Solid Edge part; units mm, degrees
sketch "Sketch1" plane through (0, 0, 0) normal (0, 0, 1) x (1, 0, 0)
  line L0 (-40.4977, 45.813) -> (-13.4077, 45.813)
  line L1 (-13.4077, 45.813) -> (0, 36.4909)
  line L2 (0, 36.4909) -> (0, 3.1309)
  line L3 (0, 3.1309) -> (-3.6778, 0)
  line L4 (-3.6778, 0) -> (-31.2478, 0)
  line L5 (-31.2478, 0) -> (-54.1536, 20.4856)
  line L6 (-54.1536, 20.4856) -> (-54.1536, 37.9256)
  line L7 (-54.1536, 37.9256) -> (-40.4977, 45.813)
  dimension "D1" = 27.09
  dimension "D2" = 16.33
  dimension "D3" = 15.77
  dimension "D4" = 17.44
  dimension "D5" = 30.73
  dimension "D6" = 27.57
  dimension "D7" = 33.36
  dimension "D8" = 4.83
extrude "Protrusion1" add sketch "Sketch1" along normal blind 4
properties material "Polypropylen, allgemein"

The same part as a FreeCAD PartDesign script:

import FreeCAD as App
import Part
import Sketcher
Q = App.Units.Quantity

doc = App.newDocument("Part")
body = doc.addObject("PartDesign::Body", "Body")

# Sketch on XY plane
sketch1 = body.newObject("Sketcher::SketchObject", "Sketch")
sketch1.AttachmentSupport = (doc.getObject("XY_Plane"), [""])
sketch1.MapMode = "FlatFace"
sketch1.addGeometry([
    Part.LineSegment(App.Vector(-13.4077, 45.813, 0), App.Vector(-40.4977, 45.813, 0)),  # 0
    Part.LineSegment(App.Vector(-40.4977, 45.813, 0), App.Vector(-54.1536, 37.9256, 0)),  # 1
    Part.LineSegment(App.Vector(-54.1536, 37.9256, 0), App.Vector(-54.1536, 20.4856, 0)),  # 2
    Part.LineSegment(App.Vector(-54.1536, 20.4856, 0), App.Vector(-31.2478, 0, 0)),  # 3
    Part.LineSegment(App.Vector(-31.2478, 0, 0), App.Vector(-3.6778, 0, 0)),  # 4
    Part.LineSegment(App.Vector(-3.6778, 0, 0), App.Vector(0, 3.1309, 0)),  # 5
    Part.LineSegment(App.Vector(0, 3.1309, 0), App.Vector(0, 36.4909, 0)),  # 6
    Part.LineSegment(App.Vector(0, 36.4909, 0), App.Vector(-13.4077, 45.813, 0)),  # 7
], False)
sketch1.addConstraint([
    Sketcher.Constraint("Coincident", 0, 2, 1, 1),
    Sketcher.Constraint("Coincident", 1, 2, 2, 1),
    Sketcher.Constraint("Coincident", 2, 2, 3, 1),
    Sketcher.Constraint("Coincident", 3, 2, 4, 1),
    Sketcher.Constraint("Coincident", 4, 2, 5, 1),
    Sketcher.Constraint("Coincident", 5, 2, 6, 1),
    Sketcher.Constraint("Coincident", 6, 2, 7, 1),
    Sketcher.Constraint("Coincident", 7, 2, 0, 1),
    Sketcher.Constraint("Horizontal", 0),
    Sketcher.Constraint("Vertical", 2),
    Sketcher.Constraint("Horizontal", 4),
    Sketcher.Constraint("Vertical", 6),
    Sketcher.Constraint("PointOnObject", 3, 2, -1),
    Sketcher.Constraint("PointOnObject", 5, 2, -2),
    Sketcher.Constraint("DistanceX", 0, 2, 0, 1, Q("27.09 mm")),
    Sketcher.Constraint("DistanceX", 4, 1, 4, 2, Q("27.57 mm")),
    Sketcher.Constraint("DistanceY", 2, 2, 2, 1, Q("17.44 mm")),
    Sketcher.Constraint("DistanceY", 6, 1, 6, 2, Q("33.36 mm")),
    Sketcher.Constraint("DistanceX", 0, 2, -1, 1, Q("40.4977 mm")),
    Sketcher.Constraint("DistanceX", 1, 2, -1, 1, Q("54.1536 mm")),
    Sketcher.Constraint("DistanceX", 3, 2, -1, 1, Q("31.2478 mm")),
    Sketcher.Constraint("Angle", 1, Q("-149.99 deg")),
    Sketcher.Constraint("Angle", 7, Q("145.19 deg")),
    Sketcher.Constraint("Distance", 3, Q("30.73 mm")),
])
pad1 = body.newObject("PartDesign::Pad", "Pad")
pad1.Profile = sketch1
pad1.Length = 4

doc.recompute()
